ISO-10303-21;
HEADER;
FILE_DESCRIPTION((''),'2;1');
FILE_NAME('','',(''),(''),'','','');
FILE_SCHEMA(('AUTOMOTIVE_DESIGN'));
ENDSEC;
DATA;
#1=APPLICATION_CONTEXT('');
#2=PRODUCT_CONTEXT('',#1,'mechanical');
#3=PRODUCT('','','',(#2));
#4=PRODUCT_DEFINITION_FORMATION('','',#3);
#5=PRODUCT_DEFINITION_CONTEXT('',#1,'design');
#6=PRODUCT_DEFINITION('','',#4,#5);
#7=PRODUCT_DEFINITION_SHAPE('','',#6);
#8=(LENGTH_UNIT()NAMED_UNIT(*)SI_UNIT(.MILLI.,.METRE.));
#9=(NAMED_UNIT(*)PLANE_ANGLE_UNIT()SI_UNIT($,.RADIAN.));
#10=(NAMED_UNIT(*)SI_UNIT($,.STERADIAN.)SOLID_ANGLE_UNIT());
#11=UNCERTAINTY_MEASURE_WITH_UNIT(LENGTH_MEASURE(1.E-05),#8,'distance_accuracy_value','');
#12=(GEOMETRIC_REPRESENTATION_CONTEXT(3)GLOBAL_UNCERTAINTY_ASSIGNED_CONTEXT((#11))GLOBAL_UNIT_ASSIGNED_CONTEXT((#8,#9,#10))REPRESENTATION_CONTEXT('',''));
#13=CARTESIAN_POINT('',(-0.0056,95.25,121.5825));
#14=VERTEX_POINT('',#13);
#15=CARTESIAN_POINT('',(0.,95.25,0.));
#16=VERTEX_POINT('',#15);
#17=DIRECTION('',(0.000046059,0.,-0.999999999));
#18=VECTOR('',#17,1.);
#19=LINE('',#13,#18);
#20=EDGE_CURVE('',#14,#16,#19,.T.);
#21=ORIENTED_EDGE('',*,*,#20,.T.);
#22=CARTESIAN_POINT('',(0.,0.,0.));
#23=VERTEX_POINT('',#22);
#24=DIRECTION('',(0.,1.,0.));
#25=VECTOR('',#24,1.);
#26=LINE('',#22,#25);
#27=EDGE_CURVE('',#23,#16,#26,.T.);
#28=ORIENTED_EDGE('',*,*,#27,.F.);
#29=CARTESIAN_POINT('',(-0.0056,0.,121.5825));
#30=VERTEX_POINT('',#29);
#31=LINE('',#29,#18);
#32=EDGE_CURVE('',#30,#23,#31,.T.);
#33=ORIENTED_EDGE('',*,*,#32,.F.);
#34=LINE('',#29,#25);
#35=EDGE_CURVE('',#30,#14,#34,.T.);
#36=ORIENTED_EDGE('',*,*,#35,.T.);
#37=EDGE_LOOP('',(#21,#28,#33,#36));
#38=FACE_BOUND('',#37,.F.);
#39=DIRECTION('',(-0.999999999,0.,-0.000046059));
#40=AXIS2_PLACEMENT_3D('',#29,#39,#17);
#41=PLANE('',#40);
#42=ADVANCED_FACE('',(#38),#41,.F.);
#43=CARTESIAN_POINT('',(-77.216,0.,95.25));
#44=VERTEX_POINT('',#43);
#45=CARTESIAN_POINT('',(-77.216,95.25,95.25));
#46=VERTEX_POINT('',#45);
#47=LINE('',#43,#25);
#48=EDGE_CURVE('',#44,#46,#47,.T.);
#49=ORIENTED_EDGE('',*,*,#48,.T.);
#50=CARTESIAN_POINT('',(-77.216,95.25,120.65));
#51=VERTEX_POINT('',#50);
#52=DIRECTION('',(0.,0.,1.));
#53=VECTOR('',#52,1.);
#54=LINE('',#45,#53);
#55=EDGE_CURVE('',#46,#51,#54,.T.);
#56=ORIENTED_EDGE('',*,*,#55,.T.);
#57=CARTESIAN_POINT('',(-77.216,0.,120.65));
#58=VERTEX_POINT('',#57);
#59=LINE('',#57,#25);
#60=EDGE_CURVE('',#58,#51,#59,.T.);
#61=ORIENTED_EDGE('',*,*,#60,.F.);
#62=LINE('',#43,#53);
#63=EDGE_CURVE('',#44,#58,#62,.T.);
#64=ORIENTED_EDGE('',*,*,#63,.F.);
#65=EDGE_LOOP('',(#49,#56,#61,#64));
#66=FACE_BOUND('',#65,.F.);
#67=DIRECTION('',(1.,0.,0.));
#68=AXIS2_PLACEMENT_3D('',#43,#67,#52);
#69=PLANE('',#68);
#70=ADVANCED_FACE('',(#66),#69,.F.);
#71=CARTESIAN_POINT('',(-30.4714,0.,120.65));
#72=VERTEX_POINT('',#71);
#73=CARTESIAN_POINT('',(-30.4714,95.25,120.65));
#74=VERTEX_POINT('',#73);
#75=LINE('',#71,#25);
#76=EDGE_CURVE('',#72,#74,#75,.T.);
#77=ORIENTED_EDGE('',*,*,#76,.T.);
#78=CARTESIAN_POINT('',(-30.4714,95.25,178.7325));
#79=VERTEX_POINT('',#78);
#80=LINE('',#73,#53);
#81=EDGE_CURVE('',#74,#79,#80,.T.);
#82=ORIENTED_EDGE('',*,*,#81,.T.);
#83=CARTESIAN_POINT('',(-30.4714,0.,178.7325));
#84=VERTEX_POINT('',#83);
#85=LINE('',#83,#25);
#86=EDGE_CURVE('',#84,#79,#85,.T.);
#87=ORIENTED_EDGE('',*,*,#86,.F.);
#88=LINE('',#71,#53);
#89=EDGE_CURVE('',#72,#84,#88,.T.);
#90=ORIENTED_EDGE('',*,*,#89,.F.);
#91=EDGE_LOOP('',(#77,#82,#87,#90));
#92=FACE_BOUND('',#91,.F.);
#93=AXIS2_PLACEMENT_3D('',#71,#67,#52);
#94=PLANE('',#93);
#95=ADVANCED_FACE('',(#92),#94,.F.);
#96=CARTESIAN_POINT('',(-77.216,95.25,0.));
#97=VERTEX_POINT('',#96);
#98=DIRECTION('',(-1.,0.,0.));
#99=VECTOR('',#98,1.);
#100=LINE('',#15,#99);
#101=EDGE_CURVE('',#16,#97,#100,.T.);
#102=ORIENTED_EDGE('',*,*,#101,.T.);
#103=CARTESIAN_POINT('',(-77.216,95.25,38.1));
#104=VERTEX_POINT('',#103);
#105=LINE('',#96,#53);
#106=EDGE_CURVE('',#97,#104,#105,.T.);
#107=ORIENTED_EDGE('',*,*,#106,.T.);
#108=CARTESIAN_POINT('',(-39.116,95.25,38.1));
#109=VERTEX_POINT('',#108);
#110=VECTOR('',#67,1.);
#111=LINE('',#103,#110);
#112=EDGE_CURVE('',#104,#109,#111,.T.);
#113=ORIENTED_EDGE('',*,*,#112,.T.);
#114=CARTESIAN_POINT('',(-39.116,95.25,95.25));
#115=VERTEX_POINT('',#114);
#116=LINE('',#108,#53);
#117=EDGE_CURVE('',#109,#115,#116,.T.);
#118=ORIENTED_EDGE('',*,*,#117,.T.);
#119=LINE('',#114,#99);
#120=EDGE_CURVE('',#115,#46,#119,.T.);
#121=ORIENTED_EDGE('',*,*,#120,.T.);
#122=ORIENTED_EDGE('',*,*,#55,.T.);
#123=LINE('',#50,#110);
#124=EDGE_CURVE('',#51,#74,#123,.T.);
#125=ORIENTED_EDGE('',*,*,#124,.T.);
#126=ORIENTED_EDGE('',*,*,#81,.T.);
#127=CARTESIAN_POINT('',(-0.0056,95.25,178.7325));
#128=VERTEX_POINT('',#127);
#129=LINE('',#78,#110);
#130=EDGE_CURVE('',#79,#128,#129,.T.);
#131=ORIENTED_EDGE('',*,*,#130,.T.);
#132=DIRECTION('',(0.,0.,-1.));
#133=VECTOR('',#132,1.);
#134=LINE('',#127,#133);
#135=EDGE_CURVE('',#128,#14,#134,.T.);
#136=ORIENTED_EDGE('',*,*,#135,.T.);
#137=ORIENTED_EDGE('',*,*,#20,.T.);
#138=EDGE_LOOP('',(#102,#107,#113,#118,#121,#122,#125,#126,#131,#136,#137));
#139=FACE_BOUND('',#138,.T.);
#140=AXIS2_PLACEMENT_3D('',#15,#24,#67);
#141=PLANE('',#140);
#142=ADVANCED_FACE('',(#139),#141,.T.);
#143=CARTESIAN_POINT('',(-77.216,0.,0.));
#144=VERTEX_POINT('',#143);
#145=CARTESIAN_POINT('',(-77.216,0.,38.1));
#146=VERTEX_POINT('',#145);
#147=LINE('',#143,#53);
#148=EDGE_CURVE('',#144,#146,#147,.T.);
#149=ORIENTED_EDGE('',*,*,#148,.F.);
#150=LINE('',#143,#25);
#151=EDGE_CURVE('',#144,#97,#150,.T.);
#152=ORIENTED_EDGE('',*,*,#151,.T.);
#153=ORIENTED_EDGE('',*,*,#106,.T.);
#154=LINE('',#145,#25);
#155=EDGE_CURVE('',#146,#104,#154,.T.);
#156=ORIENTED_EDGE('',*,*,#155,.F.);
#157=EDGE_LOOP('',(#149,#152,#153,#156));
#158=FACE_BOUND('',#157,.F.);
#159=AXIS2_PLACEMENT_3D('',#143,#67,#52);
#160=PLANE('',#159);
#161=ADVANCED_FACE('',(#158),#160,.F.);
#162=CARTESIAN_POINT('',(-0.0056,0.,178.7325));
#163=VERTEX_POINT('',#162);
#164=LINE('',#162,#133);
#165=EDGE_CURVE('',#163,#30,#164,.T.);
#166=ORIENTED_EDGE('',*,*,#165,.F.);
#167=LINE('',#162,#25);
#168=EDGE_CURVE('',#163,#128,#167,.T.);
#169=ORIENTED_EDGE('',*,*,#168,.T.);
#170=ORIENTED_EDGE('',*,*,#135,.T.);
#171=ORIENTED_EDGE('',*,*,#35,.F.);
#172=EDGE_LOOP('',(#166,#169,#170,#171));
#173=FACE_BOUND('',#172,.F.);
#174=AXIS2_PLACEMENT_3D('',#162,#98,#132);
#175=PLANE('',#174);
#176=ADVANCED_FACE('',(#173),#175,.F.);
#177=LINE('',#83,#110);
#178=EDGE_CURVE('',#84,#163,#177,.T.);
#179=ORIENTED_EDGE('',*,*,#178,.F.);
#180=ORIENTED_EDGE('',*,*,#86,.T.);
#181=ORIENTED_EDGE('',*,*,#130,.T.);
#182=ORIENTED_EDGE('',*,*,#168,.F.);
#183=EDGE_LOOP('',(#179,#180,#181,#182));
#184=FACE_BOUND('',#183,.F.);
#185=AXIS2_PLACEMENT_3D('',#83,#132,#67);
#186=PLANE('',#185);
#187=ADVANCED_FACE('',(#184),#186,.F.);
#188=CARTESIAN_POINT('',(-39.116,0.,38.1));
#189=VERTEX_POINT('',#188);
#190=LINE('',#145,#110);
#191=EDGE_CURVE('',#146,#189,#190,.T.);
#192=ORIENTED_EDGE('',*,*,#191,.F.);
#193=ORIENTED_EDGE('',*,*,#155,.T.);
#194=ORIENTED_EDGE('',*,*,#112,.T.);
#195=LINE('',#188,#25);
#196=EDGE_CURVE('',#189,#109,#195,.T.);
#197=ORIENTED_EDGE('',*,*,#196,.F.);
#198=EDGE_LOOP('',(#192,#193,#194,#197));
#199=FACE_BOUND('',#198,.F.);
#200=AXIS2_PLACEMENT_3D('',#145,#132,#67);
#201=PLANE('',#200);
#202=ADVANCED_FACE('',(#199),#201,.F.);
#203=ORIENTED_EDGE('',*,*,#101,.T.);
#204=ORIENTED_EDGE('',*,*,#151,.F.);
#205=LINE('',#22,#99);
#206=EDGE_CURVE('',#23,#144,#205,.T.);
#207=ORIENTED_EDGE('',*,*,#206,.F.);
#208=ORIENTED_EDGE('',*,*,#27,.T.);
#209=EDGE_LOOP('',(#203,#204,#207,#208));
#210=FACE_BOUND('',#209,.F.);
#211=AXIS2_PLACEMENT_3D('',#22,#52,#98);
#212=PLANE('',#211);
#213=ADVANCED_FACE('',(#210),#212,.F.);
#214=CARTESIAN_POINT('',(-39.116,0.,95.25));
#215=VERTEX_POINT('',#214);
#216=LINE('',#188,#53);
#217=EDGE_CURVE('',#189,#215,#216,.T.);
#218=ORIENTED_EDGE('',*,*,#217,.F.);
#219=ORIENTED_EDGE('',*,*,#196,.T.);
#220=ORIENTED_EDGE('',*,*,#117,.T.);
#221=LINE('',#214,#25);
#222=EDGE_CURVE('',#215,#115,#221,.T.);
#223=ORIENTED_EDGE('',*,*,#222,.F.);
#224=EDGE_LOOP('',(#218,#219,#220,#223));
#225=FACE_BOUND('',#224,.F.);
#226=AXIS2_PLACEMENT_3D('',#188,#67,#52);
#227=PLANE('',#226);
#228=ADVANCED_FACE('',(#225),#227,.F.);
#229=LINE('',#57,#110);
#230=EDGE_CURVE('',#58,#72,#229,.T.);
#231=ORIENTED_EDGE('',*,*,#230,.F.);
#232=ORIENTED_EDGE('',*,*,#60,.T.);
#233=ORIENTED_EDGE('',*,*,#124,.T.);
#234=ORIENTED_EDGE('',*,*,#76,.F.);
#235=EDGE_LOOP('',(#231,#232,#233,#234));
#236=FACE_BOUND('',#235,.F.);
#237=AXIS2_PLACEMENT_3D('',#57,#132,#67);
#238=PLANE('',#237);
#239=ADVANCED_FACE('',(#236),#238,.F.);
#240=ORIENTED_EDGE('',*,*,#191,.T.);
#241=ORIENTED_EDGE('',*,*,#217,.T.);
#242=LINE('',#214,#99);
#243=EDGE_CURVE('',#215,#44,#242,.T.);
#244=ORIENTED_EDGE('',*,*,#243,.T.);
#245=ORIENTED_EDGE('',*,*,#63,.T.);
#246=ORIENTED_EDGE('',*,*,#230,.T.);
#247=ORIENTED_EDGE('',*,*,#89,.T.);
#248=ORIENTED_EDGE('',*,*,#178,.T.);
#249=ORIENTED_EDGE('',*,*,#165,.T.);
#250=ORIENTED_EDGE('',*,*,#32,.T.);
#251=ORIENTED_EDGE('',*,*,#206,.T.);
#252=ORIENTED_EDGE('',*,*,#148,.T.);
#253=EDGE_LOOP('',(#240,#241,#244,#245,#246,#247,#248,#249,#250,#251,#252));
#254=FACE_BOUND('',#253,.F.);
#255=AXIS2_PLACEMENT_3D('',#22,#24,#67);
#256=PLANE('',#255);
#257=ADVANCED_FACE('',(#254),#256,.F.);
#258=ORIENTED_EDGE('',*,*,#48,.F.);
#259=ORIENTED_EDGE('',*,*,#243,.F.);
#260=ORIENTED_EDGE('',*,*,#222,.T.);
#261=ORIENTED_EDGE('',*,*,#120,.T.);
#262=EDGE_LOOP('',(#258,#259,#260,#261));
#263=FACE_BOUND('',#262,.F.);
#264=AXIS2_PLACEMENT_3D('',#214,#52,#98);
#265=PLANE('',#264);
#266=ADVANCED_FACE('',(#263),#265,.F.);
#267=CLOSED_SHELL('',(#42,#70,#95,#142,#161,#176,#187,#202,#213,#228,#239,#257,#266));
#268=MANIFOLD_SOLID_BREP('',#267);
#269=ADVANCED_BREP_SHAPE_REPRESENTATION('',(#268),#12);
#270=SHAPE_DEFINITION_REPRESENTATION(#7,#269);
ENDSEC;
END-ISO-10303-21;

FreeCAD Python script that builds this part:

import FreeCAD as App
import Part
import Sketcher
from FreeCAD import Vector
Q = App.Units.Quantity

doc = App.newDocument("Part")
params = doc.addObject("Spreadsheet::Sheet", "Params")
for row, (alias, value) in enumerate([
    ("sketch1_height", "1 in"),
    ("sketch1_width", "1.5 in"),
    ("sketch1_width2", "3.04 in"),
    ("sketch1_height2", "2.25 in"),
    ("pad1_length", "3.75 in"),
], start=1):
    params.set(f"A{row}", alias)
    params.set(f"B{row}", "=" + value)
    params.setAlias(f"B{row}", alias)

body = doc.addObject("PartDesign::Body", "Body")

# Sketch on XZ plane
sketch1 = body.newObject("Sketcher::SketchObject", "Sketch")
sketch1.AttachmentSupport = (doc.getObject("XZ_Plane"), [""])
sketch1.MapMode = "FlatFace"
sketch1.addGeometry(Part.LineSegment(Vector(0, 122, 0), Vector(0, 0, 0)), False)
sketch1.addGeometry(Part.LineSegment(Vector(0, 0, 0), Vector(-77, 0, 0)), False)
sketch1.addGeometry(Part.LineSegment(Vector(-77, 0, 0), Vector(-77, 38, 0)), False)
sketch1.addGeometry(Part.LineSegment(Vector(-77, 38, 0), Vector(-39, 38, 0)), False)
sketch1.addGeometry(Part.LineSegment(Vector(-39, 38, 0), Vector(-39, 95, 0)), False)
sketch1.addGeometry(Part.LineSegment(Vector(-39, 95, 0), Vector(-77, 95, 0)), False)
sketch1.addGeometry(Part.LineSegment(Vector(-77, 95, 0), Vector(-77, 121, 0)), False)
sketch1.addGeometry(Part.LineSegment(Vector(-77, 121, 0), Vector(-30, 121, 0)), False)
sketch1.addGeometry(Part.LineSegment(Vector(-30, 121, 0), Vector(-30, 179, 0)), False)
sketch1.addGeometry(Part.LineSegment(Vector(-30, 179, 0), Vector(0, 179, 0)), False)
sketch1.addGeometry(Part.LineSegment(Vector(0, 179, 0), Vector(0, 122, 0)), False)
sketch1.addConstraint(Sketcher.Constraint("Coincident", 0, 2, 1, 1))
sketch1.addConstraint(Sketcher.Constraint("Coincident", 1, 2, 2, 1))
sketch1.addConstraint(Sketcher.Constraint("Coincident", 2, 2, 3, 1))
sketch1.addConstraint(Sketcher.Constraint("Coincident", 3, 2, 4, 1))
sketch1.addConstraint(Sketcher.Constraint("Coincident", 4, 2, 5, 1))
sketch1.addConstraint(Sketcher.Constraint("Coincident", 5, 2, 6, 1))
sketch1.addConstraint(Sketcher.Constraint("Coincident", 6, 2, 7, 1))
sketch1.addConstraint(Sketcher.Constraint("Coincident", 7, 2, 8, 1))
sketch1.addConstraint(Sketcher.Constraint("Coincident", 8, 2, 9, 1))
sketch1.addConstraint(Sketcher.Constraint("Coincident", 9, 2, 10, 1))
sketch1.addConstraint(Sketcher.Constraint("Coincident", 10, 2, 0, 1))
sketch1.addConstraint(Sketcher.Constraint("Horizontal", 1))
sketch1.addConstraint(Sketcher.Constraint("Vertical", 2))
sketch1.addConstraint(Sketcher.Constraint("Horizontal", 3))
sketch1.addConstraint(Sketcher.Constraint("Vertical", 4))
sketch1.addConstraint(Sketcher.Constraint("Horizontal", 5))
sketch1.addConstraint(Sketcher.Constraint("Vertical", 6))
sketch1.addConstraint(Sketcher.Constraint("Horizontal", 7))
sketch1.addConstraint(Sketcher.Constraint("Vertical", 8))
sketch1.addConstraint(Sketcher.Constraint("Horizontal", 9))
sketch1.addConstraint(Sketcher.Constraint("Vertical", 10))
sketch1.addConstraint(Sketcher.Constraint("Coincident", 0, 2, -1, 1))
sketch1.addConstraint(Sketcher.Constraint("Vertical", 2, 2, 5, 2))
sketch1.addConstraint(Sketcher.Constraint("Equal", 5, 2))
sketch1.addConstraint(Sketcher.Constraint("Equal", 4, 10))
sketch1.addConstraint(Sketcher.Constraint("DistanceY", 6, 1, 6, 2, Q("1 in")))
sketch1.addConstraint(Sketcher.Constraint("DistanceX", 3, 1, 3, 2, Q("1.5 in")))
sketch1.addConstraint(Sketcher.Constraint("DistanceX", 1, 2, 1, 1, Q("3.04 in")))
sketch1.addConstraint(Sketcher.Constraint("DistanceY", 4, 1, 4, 2, Q("2.25 in")))
sketch1.addConstraint(Sketcher.Constraint("DistanceX", 7, 1, 7, 2, Q("46.7446 mm")))
sketch1.addConstraint(Sketcher.Constraint("DistanceX", 9, 1, 9, 2, Q("30.4658 mm")))
sketch1.addConstraint(Sketcher.Constraint("DistanceY", 8, 1, 8, 2, Q("58.0825 mm")))
sketch1.setExpression("Constraints[25]", "Params.sketch1_height")
sketch1.setExpression("Constraints[26]", "Params.sketch1_width")
sketch1.setExpression("Constraints[27]", "Params.sketch1_width2")
sketch1.setExpression("Constraints[28]", "Params.sketch1_height2")
pad1 = body.newObject("PartDesign::Pad", "Pad")
pad1.Profile = sketch1
pad1.setExpression("Length", "Params.pad1_length")
pad1.Reversed = True

doc.recompute()
